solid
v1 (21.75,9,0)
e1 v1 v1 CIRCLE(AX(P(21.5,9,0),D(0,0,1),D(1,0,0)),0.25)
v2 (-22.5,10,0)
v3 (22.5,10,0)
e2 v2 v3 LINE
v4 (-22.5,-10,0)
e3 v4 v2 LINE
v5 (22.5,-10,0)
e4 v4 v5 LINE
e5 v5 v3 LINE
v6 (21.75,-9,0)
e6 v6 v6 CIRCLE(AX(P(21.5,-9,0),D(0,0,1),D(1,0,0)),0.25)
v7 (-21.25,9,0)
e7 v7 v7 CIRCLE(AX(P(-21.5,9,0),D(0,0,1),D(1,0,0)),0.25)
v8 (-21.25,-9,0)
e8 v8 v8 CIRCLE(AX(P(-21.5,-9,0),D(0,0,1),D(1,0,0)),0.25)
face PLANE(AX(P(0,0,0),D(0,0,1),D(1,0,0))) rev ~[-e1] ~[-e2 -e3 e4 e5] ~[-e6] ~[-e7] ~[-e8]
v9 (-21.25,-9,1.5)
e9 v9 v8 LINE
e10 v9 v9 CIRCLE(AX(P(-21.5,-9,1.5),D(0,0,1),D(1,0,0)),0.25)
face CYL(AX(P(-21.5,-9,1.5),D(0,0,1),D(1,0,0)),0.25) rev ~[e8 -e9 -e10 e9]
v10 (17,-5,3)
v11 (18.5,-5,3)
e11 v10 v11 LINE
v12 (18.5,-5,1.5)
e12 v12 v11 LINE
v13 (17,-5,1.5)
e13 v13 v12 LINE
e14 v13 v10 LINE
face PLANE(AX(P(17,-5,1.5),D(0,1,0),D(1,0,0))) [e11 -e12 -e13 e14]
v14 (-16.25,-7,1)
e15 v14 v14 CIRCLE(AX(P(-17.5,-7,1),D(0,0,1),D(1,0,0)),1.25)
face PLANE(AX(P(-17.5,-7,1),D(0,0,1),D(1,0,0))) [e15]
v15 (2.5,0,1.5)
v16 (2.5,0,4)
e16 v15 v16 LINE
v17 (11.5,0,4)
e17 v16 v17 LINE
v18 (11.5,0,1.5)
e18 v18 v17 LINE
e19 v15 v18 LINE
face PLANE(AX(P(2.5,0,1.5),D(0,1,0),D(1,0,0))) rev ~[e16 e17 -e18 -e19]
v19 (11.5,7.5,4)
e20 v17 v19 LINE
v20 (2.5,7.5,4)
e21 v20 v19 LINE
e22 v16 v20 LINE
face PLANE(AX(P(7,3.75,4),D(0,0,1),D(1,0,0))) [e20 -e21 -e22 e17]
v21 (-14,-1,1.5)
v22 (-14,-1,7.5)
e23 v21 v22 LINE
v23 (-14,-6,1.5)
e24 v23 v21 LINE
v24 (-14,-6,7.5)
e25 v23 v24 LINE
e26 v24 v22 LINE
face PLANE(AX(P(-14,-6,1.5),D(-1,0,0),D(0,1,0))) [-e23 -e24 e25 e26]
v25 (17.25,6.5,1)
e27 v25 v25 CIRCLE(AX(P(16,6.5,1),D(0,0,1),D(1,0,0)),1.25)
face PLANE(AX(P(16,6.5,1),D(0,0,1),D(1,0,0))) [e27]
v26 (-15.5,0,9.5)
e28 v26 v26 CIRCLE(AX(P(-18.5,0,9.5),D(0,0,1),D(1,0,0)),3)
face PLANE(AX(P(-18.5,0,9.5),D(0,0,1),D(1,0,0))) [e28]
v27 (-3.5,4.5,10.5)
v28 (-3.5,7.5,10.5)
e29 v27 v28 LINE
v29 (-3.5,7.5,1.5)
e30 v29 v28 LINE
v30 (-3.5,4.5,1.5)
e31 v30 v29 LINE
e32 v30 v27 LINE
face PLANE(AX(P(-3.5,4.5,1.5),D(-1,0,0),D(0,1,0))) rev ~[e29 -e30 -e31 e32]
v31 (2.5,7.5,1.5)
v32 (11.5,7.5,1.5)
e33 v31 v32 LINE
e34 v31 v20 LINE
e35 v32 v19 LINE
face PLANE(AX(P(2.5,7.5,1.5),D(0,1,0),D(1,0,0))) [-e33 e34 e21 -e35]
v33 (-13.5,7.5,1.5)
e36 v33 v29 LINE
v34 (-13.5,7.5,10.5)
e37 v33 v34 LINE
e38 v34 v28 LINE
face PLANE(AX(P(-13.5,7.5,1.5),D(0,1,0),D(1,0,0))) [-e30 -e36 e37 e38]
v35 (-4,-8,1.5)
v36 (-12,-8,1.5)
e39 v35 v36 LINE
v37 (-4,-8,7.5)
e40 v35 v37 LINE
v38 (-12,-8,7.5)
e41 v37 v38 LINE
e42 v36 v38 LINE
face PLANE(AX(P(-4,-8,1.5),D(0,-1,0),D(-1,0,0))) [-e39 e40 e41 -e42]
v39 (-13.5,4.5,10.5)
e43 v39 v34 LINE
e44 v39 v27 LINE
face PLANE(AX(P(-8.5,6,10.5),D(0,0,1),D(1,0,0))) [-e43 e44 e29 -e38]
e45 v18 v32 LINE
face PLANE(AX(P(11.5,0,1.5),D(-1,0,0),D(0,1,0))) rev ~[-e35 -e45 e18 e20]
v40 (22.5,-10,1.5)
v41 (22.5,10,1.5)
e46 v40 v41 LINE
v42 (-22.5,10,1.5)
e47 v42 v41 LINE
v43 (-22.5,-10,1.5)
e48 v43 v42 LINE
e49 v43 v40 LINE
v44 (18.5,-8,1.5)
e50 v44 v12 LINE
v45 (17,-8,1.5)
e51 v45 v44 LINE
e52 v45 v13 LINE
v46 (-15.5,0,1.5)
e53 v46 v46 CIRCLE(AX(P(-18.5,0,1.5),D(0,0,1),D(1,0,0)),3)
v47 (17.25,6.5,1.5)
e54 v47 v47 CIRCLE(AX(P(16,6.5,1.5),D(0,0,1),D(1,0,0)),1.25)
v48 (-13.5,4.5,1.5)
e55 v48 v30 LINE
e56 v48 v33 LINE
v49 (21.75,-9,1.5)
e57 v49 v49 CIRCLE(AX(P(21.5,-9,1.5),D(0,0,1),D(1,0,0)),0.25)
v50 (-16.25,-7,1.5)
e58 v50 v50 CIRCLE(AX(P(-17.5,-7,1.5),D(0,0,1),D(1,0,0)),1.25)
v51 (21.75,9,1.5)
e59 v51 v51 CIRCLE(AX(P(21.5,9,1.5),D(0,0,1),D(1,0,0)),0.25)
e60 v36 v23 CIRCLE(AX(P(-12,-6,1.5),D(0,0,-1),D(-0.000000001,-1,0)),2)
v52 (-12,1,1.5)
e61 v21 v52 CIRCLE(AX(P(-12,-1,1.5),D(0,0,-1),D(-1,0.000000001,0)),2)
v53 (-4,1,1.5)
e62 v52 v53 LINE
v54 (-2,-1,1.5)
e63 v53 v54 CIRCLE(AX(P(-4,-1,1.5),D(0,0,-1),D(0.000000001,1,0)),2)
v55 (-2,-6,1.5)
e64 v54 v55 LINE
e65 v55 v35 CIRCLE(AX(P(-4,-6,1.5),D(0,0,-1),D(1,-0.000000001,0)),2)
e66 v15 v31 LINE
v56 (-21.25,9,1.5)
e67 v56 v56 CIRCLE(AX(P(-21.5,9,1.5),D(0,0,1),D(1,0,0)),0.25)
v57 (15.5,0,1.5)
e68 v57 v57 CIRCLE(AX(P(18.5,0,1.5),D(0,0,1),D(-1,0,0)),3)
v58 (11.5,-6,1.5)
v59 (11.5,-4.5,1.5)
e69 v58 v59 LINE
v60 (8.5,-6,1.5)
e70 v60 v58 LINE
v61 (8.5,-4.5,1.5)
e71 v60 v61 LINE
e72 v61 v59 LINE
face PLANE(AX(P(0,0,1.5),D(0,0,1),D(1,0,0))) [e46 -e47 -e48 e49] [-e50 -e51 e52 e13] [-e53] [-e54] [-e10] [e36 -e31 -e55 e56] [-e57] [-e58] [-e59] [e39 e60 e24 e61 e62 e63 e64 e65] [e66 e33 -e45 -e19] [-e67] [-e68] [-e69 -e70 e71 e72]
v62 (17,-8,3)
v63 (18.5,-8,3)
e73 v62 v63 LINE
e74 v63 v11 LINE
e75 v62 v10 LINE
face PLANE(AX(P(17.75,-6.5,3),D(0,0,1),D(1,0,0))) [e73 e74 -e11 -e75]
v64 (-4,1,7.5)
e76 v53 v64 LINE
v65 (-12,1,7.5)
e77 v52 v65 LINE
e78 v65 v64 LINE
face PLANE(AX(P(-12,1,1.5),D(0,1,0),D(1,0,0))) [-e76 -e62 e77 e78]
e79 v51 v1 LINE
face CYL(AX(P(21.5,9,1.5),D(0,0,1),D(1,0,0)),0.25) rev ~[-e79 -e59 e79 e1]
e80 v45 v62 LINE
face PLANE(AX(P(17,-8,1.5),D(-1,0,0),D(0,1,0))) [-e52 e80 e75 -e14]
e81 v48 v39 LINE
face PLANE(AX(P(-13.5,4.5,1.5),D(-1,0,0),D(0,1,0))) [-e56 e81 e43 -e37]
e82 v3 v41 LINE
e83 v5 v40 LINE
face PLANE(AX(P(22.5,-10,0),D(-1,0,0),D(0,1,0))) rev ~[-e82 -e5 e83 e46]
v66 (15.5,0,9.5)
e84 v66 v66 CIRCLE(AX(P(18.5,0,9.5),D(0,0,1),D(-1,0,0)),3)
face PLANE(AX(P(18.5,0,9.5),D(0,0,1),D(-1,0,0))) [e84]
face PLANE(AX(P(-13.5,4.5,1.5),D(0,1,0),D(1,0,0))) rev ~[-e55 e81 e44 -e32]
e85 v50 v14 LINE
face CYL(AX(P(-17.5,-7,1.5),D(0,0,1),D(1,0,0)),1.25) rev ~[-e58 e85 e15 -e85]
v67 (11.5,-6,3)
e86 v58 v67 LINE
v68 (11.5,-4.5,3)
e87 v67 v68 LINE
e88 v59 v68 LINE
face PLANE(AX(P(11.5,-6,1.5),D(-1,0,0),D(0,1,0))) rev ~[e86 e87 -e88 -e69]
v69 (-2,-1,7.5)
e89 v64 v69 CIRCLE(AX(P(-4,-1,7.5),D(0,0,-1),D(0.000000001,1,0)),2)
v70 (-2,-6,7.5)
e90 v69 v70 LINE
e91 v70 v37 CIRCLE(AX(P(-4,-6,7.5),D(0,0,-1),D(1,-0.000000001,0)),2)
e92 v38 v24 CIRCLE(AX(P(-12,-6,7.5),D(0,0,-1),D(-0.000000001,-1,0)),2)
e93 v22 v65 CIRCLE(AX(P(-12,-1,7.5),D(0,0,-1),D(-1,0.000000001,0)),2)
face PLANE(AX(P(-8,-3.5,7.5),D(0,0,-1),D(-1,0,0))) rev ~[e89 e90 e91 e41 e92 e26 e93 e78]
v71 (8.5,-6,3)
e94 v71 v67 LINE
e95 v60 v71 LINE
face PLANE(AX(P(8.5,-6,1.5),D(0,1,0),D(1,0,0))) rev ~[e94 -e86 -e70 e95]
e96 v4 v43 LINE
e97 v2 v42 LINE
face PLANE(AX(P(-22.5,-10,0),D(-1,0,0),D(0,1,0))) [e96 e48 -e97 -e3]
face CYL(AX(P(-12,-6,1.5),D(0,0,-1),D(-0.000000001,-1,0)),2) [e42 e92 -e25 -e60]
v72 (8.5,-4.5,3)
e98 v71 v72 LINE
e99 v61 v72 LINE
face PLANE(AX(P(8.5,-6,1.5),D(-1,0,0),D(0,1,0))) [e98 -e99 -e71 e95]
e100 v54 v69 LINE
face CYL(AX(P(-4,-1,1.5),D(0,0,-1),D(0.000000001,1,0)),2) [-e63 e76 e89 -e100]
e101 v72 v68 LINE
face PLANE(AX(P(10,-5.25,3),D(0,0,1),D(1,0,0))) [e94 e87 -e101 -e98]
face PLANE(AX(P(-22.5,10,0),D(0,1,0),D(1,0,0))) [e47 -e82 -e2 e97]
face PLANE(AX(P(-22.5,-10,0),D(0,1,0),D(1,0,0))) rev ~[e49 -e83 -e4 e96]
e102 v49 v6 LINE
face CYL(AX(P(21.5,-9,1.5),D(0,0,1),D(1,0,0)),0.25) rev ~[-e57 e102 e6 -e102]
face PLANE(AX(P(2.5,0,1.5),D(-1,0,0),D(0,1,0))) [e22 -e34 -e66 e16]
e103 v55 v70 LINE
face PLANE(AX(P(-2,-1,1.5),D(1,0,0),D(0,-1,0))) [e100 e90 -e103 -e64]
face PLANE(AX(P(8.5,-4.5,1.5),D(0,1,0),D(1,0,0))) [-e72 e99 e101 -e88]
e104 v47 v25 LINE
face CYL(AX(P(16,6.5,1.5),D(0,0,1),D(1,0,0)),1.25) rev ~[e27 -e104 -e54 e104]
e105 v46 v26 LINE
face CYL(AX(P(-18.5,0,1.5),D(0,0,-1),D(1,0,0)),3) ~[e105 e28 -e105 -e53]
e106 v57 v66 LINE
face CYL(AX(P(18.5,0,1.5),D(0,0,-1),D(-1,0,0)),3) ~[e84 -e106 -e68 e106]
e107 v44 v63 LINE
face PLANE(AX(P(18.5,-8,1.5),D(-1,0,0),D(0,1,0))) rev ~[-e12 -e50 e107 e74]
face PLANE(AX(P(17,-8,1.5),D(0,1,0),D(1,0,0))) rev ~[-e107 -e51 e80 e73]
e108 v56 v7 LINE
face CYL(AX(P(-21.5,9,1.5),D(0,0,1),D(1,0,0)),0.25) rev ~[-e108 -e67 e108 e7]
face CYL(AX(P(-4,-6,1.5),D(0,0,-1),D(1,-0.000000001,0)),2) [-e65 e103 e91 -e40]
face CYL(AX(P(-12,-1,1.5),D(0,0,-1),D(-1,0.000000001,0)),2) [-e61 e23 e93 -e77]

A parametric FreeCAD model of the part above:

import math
import FreeCAD as App
import Part
import Sketcher

doc = App.newDocument("Part")
body = doc.addObject("PartDesign::Body", "Body")

sketch1 = body.newObject("Sketcher::SketchObject", "Sketch")
sketch1.AttachmentSupport = (doc.getObject("XY_Plane"), [""])
sketch1.MapMode = "FlatFace"
sketch1.addGeometry([
    Part.LineSegment(App.Vector(-22, 10, 0), App.Vector(-22, -10, 0)),
    Part.LineSegment(App.Vector(-22, -10, 0), App.Vector(22, -10, 0)),
    Part.LineSegment(App.Vector(22, -10, 0), App.Vector(22, 10, 0)),
    Part.LineSegment(App.Vector(22, 10, 0), App.Vector(-22, 10, 0)),
], False)
sketch1.addConstraint([
    Sketcher.Constraint("Coincident", 0, 2, 1, 1),
    Sketcher.Constraint("Coincident", 1, 2, 2, 1),
    Sketcher.Constraint("Coincident", 2, 2, 3, 1),
    Sketcher.Constraint("Coincident", 3, 2, 0, 1),
    Sketcher.Constraint("Vertical", 0),
    Sketcher.Constraint("Horizontal", 1),
    Sketcher.Constraint("Vertical", 2),
    Sketcher.Constraint("Horizontal", 3),
    Sketcher.Constraint("Symmetric", 0, 2, 2, 2, -1, 1),
    Sketcher.Constraint("DistanceX", 1, 1, 1, 2, 45.0),
    Sketcher.Constraint("DistanceY", 0, 2, 0, 1, 20.0),
])
pad1 = body.newObject("PartDesign::Pad", "Pad")
pad1.Profile = sketch1
pad1.Length = 1.5

sketch2 = body.newObject("Sketcher::SketchObject", "Sketch001")
sketch2.AttachmentSupport = (doc.getObject("XY_Plane"), [""])
sketch2.MapMode = "FlatFace"
sketch2.AttachmentOffset = App.Placement(App.Vector(0, 0, 1.5), App.Rotation())
sketch2.addGeometry([
    Part.Circle(App.Vector(-18.5, 0, 0), App.Vector(0, 0, 1), 3),
    Part.Circle(App.Vector(18.5, 0, 0), App.Vector(0, 0, 1), 3),
], False)
sketch2.addConstraint([
    Sketcher.Constraint("Equal", 0, 1),
    Sketcher.Constraint("Symmetric", 0, 3, 1, 3, -1, 1),
    Sketcher.Constraint("PointOnObject", 0, 3, -1),
    Sketcher.Constraint("Diameter", 0, 6.0),
    Sketcher.Constraint("DistanceX", 0, 3, 1, 3, 37.0),
])
pad2 = body.newObject("PartDesign::Pad", "Pad001")
pad2.Profile = sketch2
pad2.Length = 8

sketch3 = body.newObject("Sketcher::SketchObject", "Sketch002")
sketch3.AttachmentSupport = (doc.getObject("XY_Plane"), [""])
sketch3.MapMode = "FlatFace"
sketch3.AttachmentOffset = App.Placement(App.Vector(0, 0, 1.5), App.Rotation())
sketch3.addGeometry([
    Part.LineSegment(App.Vector(-13.5, 7.5, 0), App.Vector(-13.5, 4.5, 0)),
    Part.LineSegment(App.Vector(-13.5, 4.5, 0), App.Vector(-3.5, 4.5, 0)),
    Part.LineSegment(App.Vector(-3.5, 4.5, 0), App.Vector(-3.5, 7.5, 0)),
    Part.LineSegment(App.Vector(-3.5, 7.5, 0), App.Vector(-13.5, 7.5, 0)),
], False)
sketch3.addConstraint([
    Sketcher.Constraint("Coincident", 0, 2, 1, 1),
    Sketcher.Constraint("Coincident", 1, 2, 2, 1),
    Sketcher.Constraint("Coincident", 2, 2, 3, 1),
    Sketcher.Constraint("Coincident", 3, 2, 0, 1),
    Sketcher.Constraint("Vertical", 0),
    Sketcher.Constraint("Horizontal", 1),
    Sketcher.Constraint("Vertical", 2),
    Sketcher.Constraint("Horizontal", 3),
    Sketcher.Constraint("DistanceX", 1, 1, 1, 2, 10.0),
    Sketcher.Constraint("DistanceY", 0, 2, 0, 1, 3.0),
    Sketcher.Constraint("DistanceX", 0, 2, -1, 1, 13.5),
    Sketcher.Constraint("DistanceY", -1, 1, 0, 2, 4.5),
])
pad3 = body.newObject("PartDesign::Pad", "Pad002")
pad3.Profile = sketch3
pad3.Length = 9

sketch4 = body.newObject("Sketcher::SketchObject", "Sketch003")
sketch4.AttachmentSupport = (doc.getObject("XY_Plane"), [""])
sketch4.MapMode = "FlatFace"
sketch4.AttachmentOffset = App.Placement(App.Vector(0, 0, 1.5), App.Rotation())
sketch4.addGeometry([
    Part.LineSegment(App.Vector(-4, 1, 0), App.Vector(-12, 1, 0)),
    Part.ArcOfCircle(Part.Circle(App.Vector(-12, -1, 0), App.Vector(0, 0, 1), 2), math.radians(90), math.radians(180)),
    Part.LineSegment(App.Vector(-14, -1, 0), App.Vector(-14, -6, 0)),
    Part.ArcOfCircle(Part.Circle(App.Vector(-12, -6, 0), App.Vector(0, 0, 1), 2), math.radians(-180), math.radians(-90)),
    Part.LineSegment(App.Vector(-12, -8, 0), App.Vector(-4, -8, 0)),
    Part.ArcOfCircle(Part.Circle(App.Vector(-4, -6, 0), App.Vector(0, 0, 1), 2), math.radians(-90), math.radians(0)),
    Part.LineSegment(App.Vector(-2, -6, 0), App.Vector(-2, -1, 0)),
    Part.ArcOfCircle(Part.Circle(App.Vector(-4, -1, 0), App.Vector(0, 0, 1), 2), math.radians(0), math.radians(90)),
], False)
sketch4.addConstraint([
    Sketcher.Constraint("Tangent", 0, 2, 1, 1),
    Sketcher.Constraint("Tangent", 1, 2, 2, 1),
    Sketcher.Constraint("Tangent", 2, 2, 3, 1),
    Sketcher.Constraint("Tangent", 3, 2, 4, 1),
    Sketcher.Constraint("Tangent", 4, 2, 5, 1),
    Sketcher.Constraint("Tangent", 5, 2, 6, 1),
    Sketcher.Constraint("Tangent", 6, 2, 7, 1),
    Sketcher.Constraint("Tangent", 7, 2, 0, 1),
    Sketcher.Constraint("Horizontal", 0),
    Sketcher.Constraint("Vertical", 2),
    Sketcher.Constraint("Horizontal", 4),
    Sketcher.Constraint("Vertical", 6),
    Sketcher.Constraint("Equal", 1, 3),
    Sketcher.Constraint("Equal", 3, 5),
    Sketcher.Constraint("Equal", 5, 7),
    Sketcher.Constraint("Radius", 1, 2.0),
    Sketcher.Constraint("DistanceX", 0, 2, 0, 1, 8.0),
    Sketcher.Constraint("DistanceY", 2, 2, 2, 1, 5.0),
    Sketcher.Constraint("DistanceX", 1, 3, -1, 1, 12.0),
    Sketcher.Constraint("DistanceY", 1, 3, -1, 1, 1.0),
])
pad4 = body.newObject("PartDesign::Pad", "Pad003")
pad4.Profile = sketch4
pad4.Length = 6

sketch5 = body.newObject("Sketcher::SketchObject", "Sketch004")
sketch5.AttachmentSupport = (doc.getObject("XY_Plane"), [""])
sketch5.MapMode = "FlatFace"
sketch5.AttachmentOffset = App.Placement(App.Vector(0, 0, 1.5), App.Rotation())
sketch5.addGeometry([
    Part.LineSegment(App.Vector(2, 8, 0), App.Vector(2, 0, 0)),
    Part.LineSegment(App.Vector(2, 0, 0), App.Vector(12, 0, 0)),
    Part.LineSegment(App.Vector(12, 0, 0), App.Vector(12, 8, 0)),
    Part.LineSegment(App.Vector(12, 8, 0), App.Vector(2, 8, 0)),
], False)
sketch5.addConstraint([
    Sketcher.Constraint("Coincident", 0, 2, 1, 1),
    Sketcher.Constraint("Coincident", 1, 2, 2, 1),
    Sketcher.Constraint("Coincident", 2, 2, 3, 1),
    Sketcher.Constraint("Coincident", 3, 2, 0, 1),
    Sketcher.Constraint("Vertical", 0),
    Sketcher.Constraint("Horizontal", 1),
    Sketcher.Constraint("Vertical", 2),
    Sketcher.Constraint("Horizontal", 3),
    Sketcher.Constraint("PointOnObject", 0, 2, -1),
    Sketcher.Constraint("DistanceX", 1, 1, 1, 2, 9.0),
    Sketcher.Constraint("DistanceY", 0, 2, 0, 1, 7.5),
    Sketcher.Constraint("DistanceX", -1, 1, 0, 2, 2.5),
])
pad5 = body.newObject("PartDesign::Pad", "Pad004")
pad5.Profile = sketch5
pad5.Length = 2.5

sketch6 = body.newObject("Sketcher::SketchObject", "Sketch005")
sketch6.AttachmentSupport = (doc.getObject("XY_Plane"), [""])
sketch6.MapMode = "FlatFace"
sketch6.AttachmentOffset = App.Placement(App.Vector(0, 0, 1.5), App.Rotation())
sketch6.addGeometry([
    Part.LineSegment(App.Vector(17, -5, 0), App.Vector(17, -8, 0)),
    Part.LineSegment(App.Vector(17, -8, 0), App.Vector(18.5, -8, 0)),
    Part.LineSegment(App.Vector(18.5, -8, 0), App.Vector(18.5, -5, 0)),
    Part.LineSegment(App.Vector(18.5, -5, 0), App.Vector(17, -5, 0)),
    Part.LineSegment(App.Vector(8.5, -4.5, 0), App.Vector(8.5, -6, 0)),
    Part.LineSegment(App.Vector(8.5, -6, 0), App.Vector(11.5, -6, 0)),
    Part.LineSegment(App.Vector(11.5, -6, 0), App.Vector(11.5, -4.5, 0)),
    Part.LineSegment(App.Vector(11.5, -4.5, 0), App.Vector(8.5, -4.5, 0)),
], False)
sketch6.addConstraint([
    Sketcher.Constraint("Coincident", 0, 2, 1, 1),
    Sketcher.Constraint("Coincident", 1, 2, 2, 1),
    Sketcher.Constraint("Coincident", 2, 2, 3, 1),
    Sketcher.Constraint("Coincident", 3, 2, 0, 1),
    Sketcher.Constraint("Coincident", 4, 2, 5, 1),
    Sketcher.Constraint("Coincident", 5, 2, 6, 1),
    Sketcher.Constraint("Coincident", 6, 2, 7, 1),
    Sketcher.Constraint("Coincident", 7, 2, 4, 1),
    Sketcher.Constraint("Vertical", 0),
    Sketcher.Constraint("Horizontal", 1),
    Sketcher.Constraint("Vertical", 2),
    Sketcher.Constraint("Horizontal", 3),
    Sketcher.Constraint("Vertical", 4),
    Sketcher.Constraint("Horizontal", 5),
    Sketcher.Constraint("Vertical", 6),
    Sketcher.Constraint("Horizontal", 7),
    Sketcher.Constraint("Equal", 7, 0),
    Sketcher.Constraint("Equal", 3, 4),
    Sketcher.Constraint("DistanceX", 5, 1, 5, 2, 3.0),
    Sketcher.Constraint("DistanceX", 1, 1, 1, 2, 1.5),
    Sketcher.Constraint("DistanceX", -1, 1, 0, 2, 17.0),
    Sketcher.Constraint("DistanceY", 0, 2, -1, 1, 8.0),
    Sketcher.Constraint("DistanceY", 4, 2, -1, 1, 6.0),
    Sketcher.Constraint("DistanceX", 4, 2, 2, 2, 10.0),
])
pad6 = body.newObject("PartDesign::Pad", "Pad005")
pad6.Profile = sketch6
pad6.Length = 1.5

sketch7 = body.newObject("Sketcher::SketchObject", "Sketch006")
sketch7.AttachmentSupport = (doc.getObject("XY_Plane"), [""])
sketch7.MapMode = "FlatFace"
sketch7.AttachmentOffset = App.Placement(App.Vector(0, 0, 1.5), App.Rotation())
sketch7.addGeometry(Part.Circle(App.Vector(-17.5, -7, 0), App.Vector(0, 0, 1), 1.2), False)
sketch7.addConstraint([
    Sketcher.Constraint("Diameter", 0, 2.5),
    Sketcher.Constraint("DistanceY", 0, 3, -1, 1, 7.0),
    Sketcher.Constraint("DistanceX", 0, 3, -1, 1, 17.5),
])
pocket1 = body.newObject("PartDesign::Pocket", "Pocket")
pocket1.Profile = sketch7
pocket1.Length = 0.5

sketch8 = body.newObject("Sketcher::SketchObject", "Sketch007")
sketch8.AttachmentSupport = (doc.getObject("XY_Plane"), [""])
sketch8.MapMode = "FlatFace"
sketch8.AttachmentOffset = App.Placement(App.Vector(0, 0, 1.5), App.Rotation())
sketch8.addGeometry(Part.Circle(App.Vector(16, 6.5, 0), App.Vector(0, 0, 1), 1.2), False)
sketch8.addConstraint([
    Sketcher.Constraint("Diameter", 0, 2.5),
    Sketcher.Constraint("DistanceX", -1, 1, 0, 3, 16.0),
    Sketcher.Constraint("DistanceY", -1, 1, 0, 3, 6.5),
])
pocket2 = body.newObject("PartDesign::Pocket", "Pocket001")
pocket2.Profile = sketch8
pocket2.Length = 0.5

sketch9 = body.newObject("Sketcher::SketchObject", "Sketch008")
sketch9.AttachmentSupport = (doc.getObject("XY_Plane"), [""])
sketch9.MapMode = "FlatFace"
sketch9.AttachmentOffset = App.Placement(App.Vector(0, 0, 1.5), App.Rotation())
sketch9.addGeometry([
    Part.Circle(App.Vector(-21.5, 9, 0), App.Vector(0, 0, 1), 0.25),
    Part.Circle(App.Vector(21.5, 9, 0), App.Vector(0, 0, 1), 0.25),
    Part.Circle(App.Vector(21.5, -9, 0), App.Vector(0, 0, 1), 0.25),
    Part.Circle(App.Vector(-21.5, -9, 0), App.Vector(0, 0, 1), 0.25),
], False)
sketch9.addConstraint([
    Sketcher.Constraint("Equal", 0, 1),
    Sketcher.Constraint("Equal", 1, 2),
    Sketcher.Constraint("Equal", 2, 3),
    Sketcher.Constraint("Symmetric", 0, 3, 2, 3, -1, 1),
    Sketcher.Constraint("Symmetric", 1, 3, 3, 3, -1, 1),
    Sketcher.Constraint("Symmetric", 0, 3, 1, 3, -2),
    Sketcher.Constraint("Diameter", 0, 0.5),
    Sketcher.Constraint("DistanceY", -1, 1, 0, 3, 9.0),
    Sketcher.Constraint("DistanceX", 0, 3, 1, 3, 43.0),
])
pocket3 = body.newObject("PartDesign::Pocket", "Pocket002")
pocket3.Profile = sketch9
pocket3.Length = 1.5

doc.recompute()
